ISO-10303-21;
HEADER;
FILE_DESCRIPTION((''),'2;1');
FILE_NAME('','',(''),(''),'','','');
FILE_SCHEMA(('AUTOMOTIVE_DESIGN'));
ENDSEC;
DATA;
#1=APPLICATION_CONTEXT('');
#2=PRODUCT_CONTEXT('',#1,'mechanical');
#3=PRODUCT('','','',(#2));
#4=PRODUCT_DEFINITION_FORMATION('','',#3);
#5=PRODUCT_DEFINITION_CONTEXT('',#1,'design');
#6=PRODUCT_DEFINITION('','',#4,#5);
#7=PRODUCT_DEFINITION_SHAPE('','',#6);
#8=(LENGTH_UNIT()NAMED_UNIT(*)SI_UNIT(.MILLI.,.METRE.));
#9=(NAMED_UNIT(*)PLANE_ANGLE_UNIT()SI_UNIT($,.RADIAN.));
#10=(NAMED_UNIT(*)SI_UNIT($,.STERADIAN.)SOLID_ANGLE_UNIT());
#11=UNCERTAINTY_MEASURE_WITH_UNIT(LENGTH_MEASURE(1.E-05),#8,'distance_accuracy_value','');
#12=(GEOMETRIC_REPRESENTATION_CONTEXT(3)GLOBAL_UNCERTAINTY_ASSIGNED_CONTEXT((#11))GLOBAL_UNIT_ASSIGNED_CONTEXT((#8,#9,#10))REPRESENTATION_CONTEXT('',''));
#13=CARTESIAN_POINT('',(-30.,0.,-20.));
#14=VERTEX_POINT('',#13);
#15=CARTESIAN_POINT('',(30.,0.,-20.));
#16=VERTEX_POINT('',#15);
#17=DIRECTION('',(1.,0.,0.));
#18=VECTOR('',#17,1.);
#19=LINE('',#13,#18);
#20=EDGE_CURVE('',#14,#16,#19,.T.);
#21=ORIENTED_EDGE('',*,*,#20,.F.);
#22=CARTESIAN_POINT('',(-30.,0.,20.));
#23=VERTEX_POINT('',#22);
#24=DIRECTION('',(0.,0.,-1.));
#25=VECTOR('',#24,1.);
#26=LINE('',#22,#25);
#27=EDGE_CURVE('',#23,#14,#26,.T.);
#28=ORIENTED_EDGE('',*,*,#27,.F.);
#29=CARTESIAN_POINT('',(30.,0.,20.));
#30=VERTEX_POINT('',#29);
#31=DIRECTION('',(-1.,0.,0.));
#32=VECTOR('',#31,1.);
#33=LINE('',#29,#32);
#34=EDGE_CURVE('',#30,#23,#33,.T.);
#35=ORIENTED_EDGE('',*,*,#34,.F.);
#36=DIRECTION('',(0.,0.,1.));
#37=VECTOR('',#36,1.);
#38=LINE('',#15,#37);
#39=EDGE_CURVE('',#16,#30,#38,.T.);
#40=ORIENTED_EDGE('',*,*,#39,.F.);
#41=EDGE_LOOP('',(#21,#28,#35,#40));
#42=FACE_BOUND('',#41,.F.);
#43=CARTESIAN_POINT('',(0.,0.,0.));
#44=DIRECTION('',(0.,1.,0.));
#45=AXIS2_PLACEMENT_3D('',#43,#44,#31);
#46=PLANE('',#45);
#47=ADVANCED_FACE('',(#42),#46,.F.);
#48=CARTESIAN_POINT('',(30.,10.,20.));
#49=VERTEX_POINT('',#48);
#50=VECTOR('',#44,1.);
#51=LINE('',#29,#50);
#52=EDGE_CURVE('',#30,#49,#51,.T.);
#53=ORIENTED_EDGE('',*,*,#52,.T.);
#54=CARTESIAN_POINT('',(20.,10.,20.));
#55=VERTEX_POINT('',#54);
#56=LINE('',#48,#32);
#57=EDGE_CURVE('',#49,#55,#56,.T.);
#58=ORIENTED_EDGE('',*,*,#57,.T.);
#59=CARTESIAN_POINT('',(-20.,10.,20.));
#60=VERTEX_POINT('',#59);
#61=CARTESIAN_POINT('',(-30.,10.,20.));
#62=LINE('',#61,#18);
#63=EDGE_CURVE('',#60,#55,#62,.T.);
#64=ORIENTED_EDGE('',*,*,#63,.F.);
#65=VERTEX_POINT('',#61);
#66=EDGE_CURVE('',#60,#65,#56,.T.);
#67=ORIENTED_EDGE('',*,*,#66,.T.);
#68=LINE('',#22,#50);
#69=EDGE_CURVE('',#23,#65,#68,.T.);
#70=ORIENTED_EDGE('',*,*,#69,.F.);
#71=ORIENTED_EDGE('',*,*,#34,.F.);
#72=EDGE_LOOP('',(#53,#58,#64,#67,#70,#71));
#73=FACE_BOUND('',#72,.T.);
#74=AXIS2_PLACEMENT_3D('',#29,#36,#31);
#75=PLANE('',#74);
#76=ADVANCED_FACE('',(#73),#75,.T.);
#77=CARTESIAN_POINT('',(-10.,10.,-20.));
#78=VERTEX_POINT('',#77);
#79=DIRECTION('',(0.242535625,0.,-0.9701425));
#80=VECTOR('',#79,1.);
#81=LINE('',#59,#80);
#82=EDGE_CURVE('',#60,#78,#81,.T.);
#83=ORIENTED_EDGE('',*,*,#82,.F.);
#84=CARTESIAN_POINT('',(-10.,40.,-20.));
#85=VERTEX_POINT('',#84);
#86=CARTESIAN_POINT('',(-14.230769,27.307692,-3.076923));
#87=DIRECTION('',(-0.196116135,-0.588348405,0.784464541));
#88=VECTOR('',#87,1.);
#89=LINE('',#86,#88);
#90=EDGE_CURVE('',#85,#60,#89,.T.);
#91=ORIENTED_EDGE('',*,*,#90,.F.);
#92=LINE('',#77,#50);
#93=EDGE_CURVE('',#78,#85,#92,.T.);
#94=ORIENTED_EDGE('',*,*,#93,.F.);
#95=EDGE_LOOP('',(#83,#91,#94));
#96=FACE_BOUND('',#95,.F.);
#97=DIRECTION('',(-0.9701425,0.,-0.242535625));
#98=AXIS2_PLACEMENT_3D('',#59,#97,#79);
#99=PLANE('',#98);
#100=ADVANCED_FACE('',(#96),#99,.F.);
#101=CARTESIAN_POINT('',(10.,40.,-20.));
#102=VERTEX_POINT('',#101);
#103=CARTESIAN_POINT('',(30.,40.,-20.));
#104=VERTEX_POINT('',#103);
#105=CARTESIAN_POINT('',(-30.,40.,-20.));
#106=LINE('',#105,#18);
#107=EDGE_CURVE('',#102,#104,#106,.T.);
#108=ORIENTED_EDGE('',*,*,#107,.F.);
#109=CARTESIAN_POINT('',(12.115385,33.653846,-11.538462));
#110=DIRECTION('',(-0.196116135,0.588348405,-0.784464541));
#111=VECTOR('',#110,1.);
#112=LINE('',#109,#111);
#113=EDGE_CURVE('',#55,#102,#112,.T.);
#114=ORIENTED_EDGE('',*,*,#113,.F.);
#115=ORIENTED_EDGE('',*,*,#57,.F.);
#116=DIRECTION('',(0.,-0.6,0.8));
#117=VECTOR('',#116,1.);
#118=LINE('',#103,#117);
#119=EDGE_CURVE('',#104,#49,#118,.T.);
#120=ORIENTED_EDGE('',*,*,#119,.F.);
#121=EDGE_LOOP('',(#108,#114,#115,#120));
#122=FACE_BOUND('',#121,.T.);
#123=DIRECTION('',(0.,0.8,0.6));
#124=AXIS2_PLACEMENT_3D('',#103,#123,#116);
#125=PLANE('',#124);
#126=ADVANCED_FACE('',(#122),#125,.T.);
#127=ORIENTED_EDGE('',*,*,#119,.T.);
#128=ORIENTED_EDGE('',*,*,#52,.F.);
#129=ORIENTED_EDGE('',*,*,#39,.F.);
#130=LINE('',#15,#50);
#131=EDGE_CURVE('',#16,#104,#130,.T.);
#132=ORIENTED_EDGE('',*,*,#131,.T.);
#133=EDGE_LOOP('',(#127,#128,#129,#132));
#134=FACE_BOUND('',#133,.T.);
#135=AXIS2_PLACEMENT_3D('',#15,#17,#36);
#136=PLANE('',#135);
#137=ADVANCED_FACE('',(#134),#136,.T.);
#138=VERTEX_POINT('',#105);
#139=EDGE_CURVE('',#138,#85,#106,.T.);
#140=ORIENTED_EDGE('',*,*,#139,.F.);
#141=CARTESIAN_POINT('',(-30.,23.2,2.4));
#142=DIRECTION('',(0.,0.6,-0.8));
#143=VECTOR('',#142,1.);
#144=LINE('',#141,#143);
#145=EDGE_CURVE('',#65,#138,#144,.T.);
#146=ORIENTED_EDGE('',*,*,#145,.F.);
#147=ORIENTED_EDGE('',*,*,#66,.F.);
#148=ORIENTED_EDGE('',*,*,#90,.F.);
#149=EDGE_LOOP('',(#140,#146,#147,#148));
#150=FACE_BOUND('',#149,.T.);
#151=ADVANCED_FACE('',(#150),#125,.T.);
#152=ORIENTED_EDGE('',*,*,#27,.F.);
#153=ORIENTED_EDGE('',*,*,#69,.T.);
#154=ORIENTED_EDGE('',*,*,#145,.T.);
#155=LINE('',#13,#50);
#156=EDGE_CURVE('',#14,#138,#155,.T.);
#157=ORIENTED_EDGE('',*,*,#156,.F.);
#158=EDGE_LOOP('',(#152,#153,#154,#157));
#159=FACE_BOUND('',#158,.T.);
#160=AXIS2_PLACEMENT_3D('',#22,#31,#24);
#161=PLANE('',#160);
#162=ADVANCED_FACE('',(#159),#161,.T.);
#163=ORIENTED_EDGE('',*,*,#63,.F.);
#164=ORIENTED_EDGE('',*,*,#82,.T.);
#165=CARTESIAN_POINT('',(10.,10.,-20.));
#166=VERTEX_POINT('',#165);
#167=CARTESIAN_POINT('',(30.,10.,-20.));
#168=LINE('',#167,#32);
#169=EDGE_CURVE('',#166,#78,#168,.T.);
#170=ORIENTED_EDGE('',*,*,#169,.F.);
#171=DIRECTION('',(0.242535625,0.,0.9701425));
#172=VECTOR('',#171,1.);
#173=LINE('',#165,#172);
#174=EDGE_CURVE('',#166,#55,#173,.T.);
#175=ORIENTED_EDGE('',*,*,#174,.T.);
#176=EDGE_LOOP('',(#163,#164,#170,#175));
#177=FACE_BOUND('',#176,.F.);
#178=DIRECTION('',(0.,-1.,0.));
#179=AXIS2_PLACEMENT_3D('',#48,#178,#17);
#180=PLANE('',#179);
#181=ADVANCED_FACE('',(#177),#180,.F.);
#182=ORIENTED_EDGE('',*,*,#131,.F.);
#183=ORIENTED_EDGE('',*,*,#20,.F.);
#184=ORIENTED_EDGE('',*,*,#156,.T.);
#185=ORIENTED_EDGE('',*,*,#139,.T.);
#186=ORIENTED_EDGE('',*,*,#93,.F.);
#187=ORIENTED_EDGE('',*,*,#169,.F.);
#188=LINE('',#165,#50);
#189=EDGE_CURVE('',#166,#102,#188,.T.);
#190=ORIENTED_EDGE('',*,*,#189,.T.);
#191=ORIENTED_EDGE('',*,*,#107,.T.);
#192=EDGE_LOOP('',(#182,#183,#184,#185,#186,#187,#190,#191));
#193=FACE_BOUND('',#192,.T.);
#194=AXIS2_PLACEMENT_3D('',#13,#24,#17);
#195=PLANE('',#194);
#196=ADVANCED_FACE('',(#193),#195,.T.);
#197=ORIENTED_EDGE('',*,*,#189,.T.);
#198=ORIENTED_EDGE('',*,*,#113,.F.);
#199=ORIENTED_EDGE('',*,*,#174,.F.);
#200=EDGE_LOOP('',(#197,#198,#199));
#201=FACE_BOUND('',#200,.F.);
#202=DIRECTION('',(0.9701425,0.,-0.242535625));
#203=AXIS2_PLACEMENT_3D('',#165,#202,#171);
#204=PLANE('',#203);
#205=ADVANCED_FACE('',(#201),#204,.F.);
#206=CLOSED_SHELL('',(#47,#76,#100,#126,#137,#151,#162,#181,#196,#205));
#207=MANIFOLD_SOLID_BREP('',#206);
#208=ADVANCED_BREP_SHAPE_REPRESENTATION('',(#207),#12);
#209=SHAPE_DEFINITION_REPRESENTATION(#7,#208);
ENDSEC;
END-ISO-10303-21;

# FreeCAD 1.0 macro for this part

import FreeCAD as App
import Part
import Sketcher
from FreeCAD import Vector
Q = App.Units.Quantity

doc = App.newDocument("Part")
body = doc.addObject("PartDesign::Body", "Body")

sketch1 = doc.addObject("Sketcher::SketchObject", "Sketch")
body.addObject(sketch1)
sketch1.AttachmentSupport = (doc.XZ_Plane, [""])
sketch1.MapMode = "FlatFace"
sketch1.addGeometry([
    Part.LineSegment(Vector(-30, 20, 0), Vector(30, 20, 0)),
    Part.LineSegment(Vector(30, 20, 0), Vector(30, -20, 0)),
    Part.LineSegment(Vector(30, -20, 0), Vector(-30, -20, 0)),
    Part.LineSegment(Vector(-30, -20, 0), Vector(-30, 20, 0)),
], False)
sketch1.addConstraint([
    Sketcher.Constraint("Coincident", 0, 2, 1, 1),
    Sketcher.Constraint("Coincident", 1, 2, 2, 1),
    Sketcher.Constraint("Coincident", 2, 2, 3, 1),
    Sketcher.Constraint("Coincident", 3, 2, 0, 1),
    Sketcher.Constraint("Horizontal", 0),
    Sketcher.Constraint("Vertical", 1),
    Sketcher.Constraint("Horizontal", 2),
    Sketcher.Constraint("Vertical", 3),
    Sketcher.Constraint("Symmetric", 0, 2, 2, 2, -1, 1),
    Sketcher.Constraint("DistanceX", 0, 1, 0, 2, Q("60 mm")),
    Sketcher.Constraint("DistanceY", 1, 2, 1, 1, Q("40 mm")),
])
pad1 = doc.addObject("PartDesign::Pad", "Pad")
body.addObject(pad1)
pad1.Profile = sketch1
pad1.Length = 40
pad1.Reversed = True

sketch2 = doc.addObject("Sketcher::SketchObject", "Sketch001")
body.addObject(sketch2)
sketch2.AttachmentSupport = (doc.YZ_Plane, [""])
sketch2.MapMode = "FlatFace"
sketch2.AttachmentOffset = App.Placement(Vector(0, 0, 30), App.Rotation())
sketch2.addGeometry([
    Part.LineSegment(Vector(40, 20, 0), Vector(10, 20, 0)),
    Part.LineSegment(Vector(10, 20, 0), Vector(40, -20, 0)),
    Part.LineSegment(Vector(40, -20, 0), Vector(40, 20, 0)),
], False)
sketch2.addConstraint([
    Sketcher.Constraint("Coincident", 0, 2, 1, 1),
    Sketcher.Constraint("Coincident", 1, 2, 2, 1),
    Sketcher.Constraint("Coincident", 2, 2, 0, 1),
    Sketcher.Constraint("Horizontal", 0),
    Sketcher.Constraint("Vertical", 2),
    Sketcher.Constraint("DistanceX", -1, 1, 0, 2, Q("10 mm")),
    Sketcher.Constraint("DistanceX", 0, 2, 0, 1, Q("30 mm")),
    Sketcher.Constraint("DistanceY", 2, 1, 2, 2, Q("40 mm")),
    Sketcher.Constraint("DistanceY", -1, 1, 0, 2, Q("20 mm")),
])
pocket1 = doc.addObject("PartDesign::Pocket", "Pocket")
body.addObject(pocket1)
pocket1.Profile = sketch2
pocket1.Type = "ThroughAll"

sketch3 = doc.addObject("Sketcher::SketchObject", "Sketch002")
body.addObject(sketch3)
sketch3.AttachmentSupport = (doc.XZ_Plane, [""])
sketch3.MapMode = "FlatFace"
sketch3.AttachmentOffset = App.Placement(Vector(0, 0, -10), App.Rotation())
sketch3.addGeometry([
    Part.LineSegment(Vector(20, 20, 0), Vector(-20, 20, 0)),
    Part.LineSegment(Vector(-20, 20, 0), Vector(-10, -20, 0)),
    Part.LineSegment(Vector(-10, -20, 0), Vector(10, -20, 0)),
    Part.LineSegment(Vector(10, -20, 0), Vector(20, 20, 0)),
], False)
sketch3.addConstraint([
    Sketcher.Constraint("Coincident", 0, 2, 1, 1),
    Sketcher.Constraint("Coincident", 1, 2, 2, 1),
    Sketcher.Constraint("Coincident", 2, 2, 3, 1),
    Sketcher.Constraint("Coincident", 3, 2, 0, 1),
    Sketcher.Constraint("Horizontal", 0),
    Sketcher.Constraint("Horizontal", 2),
    Sketcher.Constraint("Equal", 1, 3),
    Sketcher.Constraint("DistanceX", 0, 2, 0, 1, Q("40 mm")),
    Sketcher.Constraint("DistanceX", 2, 1, 2, 2, Q("20 mm")),
    Sketcher.Constraint("DistanceX", 0, 2, -1, 1, Q("20 mm")),
    Sketcher.Constraint("DistanceY", -1, 1, 0, 2, Q("20 mm")),
    Sketcher.Constraint("DistanceY", 1, 2, -1, 1, Q("20 mm")),
])
pocket2 = doc.addObject("PartDesign::Pocket", "Pocket001")
body.addObject(pocket2)
pocket2.Profile = sketch3
pocket2.Length = 53

doc.recompute()
